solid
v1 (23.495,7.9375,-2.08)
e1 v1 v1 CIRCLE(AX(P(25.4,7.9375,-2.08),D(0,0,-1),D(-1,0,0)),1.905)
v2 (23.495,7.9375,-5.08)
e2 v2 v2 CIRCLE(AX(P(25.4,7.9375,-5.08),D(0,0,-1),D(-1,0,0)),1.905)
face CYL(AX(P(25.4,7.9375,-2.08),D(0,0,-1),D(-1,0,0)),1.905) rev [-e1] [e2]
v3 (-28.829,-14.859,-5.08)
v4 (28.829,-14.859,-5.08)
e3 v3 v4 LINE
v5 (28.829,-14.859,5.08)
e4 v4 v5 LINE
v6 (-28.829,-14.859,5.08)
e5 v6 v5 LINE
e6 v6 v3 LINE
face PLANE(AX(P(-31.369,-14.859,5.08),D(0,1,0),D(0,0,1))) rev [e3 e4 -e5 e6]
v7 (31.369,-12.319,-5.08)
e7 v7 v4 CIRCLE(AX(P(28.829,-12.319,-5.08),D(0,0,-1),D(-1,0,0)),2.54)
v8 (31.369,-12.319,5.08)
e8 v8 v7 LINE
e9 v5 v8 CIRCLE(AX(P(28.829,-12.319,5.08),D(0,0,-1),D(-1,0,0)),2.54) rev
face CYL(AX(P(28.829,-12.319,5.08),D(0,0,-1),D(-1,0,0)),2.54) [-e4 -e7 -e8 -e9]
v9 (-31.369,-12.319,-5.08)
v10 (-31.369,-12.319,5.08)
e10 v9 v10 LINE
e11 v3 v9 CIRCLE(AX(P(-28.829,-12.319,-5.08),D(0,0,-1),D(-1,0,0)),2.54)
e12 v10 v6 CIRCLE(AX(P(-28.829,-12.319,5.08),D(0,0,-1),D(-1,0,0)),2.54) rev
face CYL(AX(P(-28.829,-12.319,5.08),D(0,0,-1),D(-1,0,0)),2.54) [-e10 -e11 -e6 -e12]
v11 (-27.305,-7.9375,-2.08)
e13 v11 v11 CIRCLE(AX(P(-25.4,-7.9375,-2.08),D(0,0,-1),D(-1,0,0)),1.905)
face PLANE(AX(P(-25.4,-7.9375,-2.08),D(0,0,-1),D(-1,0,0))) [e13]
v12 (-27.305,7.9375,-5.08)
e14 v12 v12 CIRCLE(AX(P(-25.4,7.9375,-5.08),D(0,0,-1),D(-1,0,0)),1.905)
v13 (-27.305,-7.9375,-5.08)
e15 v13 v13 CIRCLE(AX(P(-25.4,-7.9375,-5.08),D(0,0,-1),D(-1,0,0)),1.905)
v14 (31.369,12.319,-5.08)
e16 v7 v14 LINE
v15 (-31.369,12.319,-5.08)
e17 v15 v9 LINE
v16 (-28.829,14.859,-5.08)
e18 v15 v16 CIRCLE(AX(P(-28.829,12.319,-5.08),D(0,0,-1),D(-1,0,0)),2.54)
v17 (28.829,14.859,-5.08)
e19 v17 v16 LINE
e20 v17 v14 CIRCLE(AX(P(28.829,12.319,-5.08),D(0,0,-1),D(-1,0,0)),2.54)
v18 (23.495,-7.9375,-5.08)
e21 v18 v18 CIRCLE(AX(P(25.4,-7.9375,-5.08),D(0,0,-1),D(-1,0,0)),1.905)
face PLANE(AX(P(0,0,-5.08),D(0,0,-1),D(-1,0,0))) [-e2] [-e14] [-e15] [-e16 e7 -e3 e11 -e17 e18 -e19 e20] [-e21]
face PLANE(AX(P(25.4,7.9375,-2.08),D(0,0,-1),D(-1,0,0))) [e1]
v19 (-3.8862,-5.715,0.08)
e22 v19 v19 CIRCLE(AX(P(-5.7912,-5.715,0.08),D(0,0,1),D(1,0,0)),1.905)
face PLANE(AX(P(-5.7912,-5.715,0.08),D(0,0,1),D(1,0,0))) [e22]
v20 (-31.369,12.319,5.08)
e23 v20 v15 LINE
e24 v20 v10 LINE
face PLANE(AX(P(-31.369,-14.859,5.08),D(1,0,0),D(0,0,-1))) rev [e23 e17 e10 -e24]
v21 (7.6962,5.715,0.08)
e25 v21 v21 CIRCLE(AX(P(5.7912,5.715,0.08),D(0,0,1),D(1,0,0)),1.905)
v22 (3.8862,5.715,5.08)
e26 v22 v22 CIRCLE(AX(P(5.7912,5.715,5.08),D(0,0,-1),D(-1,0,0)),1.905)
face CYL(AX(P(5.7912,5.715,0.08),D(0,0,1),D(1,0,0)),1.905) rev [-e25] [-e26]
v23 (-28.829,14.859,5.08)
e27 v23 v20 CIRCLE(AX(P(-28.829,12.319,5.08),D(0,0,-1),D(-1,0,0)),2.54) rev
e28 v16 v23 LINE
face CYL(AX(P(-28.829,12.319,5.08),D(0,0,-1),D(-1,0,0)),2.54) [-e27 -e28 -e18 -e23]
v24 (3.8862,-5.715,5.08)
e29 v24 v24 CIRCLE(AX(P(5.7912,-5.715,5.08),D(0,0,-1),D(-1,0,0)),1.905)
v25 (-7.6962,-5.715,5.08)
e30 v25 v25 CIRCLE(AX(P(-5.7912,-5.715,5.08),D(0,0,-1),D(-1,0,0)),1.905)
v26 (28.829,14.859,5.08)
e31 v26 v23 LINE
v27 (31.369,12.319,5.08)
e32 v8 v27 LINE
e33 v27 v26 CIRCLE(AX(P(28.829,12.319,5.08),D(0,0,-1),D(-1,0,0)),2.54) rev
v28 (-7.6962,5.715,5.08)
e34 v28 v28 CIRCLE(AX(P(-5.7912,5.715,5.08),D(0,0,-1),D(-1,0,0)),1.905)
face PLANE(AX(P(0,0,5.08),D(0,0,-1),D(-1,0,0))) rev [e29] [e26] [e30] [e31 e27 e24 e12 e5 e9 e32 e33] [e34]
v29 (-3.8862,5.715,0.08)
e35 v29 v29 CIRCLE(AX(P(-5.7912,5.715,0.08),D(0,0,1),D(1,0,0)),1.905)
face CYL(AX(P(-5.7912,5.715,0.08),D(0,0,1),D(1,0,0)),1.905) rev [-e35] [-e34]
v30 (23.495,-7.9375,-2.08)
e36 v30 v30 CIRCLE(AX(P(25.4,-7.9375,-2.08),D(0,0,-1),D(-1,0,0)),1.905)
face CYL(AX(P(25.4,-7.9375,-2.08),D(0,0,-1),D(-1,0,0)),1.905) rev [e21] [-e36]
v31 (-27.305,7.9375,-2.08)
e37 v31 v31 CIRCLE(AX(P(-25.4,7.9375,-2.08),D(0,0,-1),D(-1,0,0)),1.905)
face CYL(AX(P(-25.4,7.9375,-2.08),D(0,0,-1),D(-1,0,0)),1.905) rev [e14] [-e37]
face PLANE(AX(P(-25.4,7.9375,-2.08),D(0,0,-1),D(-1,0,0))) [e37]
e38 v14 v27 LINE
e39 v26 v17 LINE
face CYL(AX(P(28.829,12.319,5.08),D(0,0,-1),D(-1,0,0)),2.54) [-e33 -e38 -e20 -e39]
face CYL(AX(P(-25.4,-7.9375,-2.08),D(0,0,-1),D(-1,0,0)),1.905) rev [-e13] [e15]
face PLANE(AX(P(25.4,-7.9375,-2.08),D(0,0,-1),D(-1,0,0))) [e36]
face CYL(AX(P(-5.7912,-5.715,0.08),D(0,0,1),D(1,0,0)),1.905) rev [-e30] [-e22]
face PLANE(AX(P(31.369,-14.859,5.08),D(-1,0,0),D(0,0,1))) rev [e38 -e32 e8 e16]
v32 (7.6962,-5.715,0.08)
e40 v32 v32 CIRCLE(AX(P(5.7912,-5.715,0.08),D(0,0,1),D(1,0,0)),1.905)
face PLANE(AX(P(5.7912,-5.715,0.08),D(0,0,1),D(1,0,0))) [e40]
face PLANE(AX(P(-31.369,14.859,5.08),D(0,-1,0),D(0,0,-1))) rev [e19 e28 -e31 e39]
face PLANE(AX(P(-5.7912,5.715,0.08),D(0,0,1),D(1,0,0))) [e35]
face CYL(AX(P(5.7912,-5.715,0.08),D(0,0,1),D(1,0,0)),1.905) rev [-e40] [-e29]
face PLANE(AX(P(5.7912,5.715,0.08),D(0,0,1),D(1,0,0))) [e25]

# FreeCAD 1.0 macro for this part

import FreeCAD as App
import Part
import Sketcher
Q = App.Units.Quantity


def edges_at(feature, points):
    """Names of the edges that pass closest to the given points."""
    edges = feature.Shape.Edges
    near = lambda p: min(range(len(edges)), key=lambda i: edges[i].distToShape(Part.Vertex(*p))[0])
    return sorted({f"Edge{near(p) + 1}" for p in points})


def add_polygon(sketch, points):
    """Adds a closed chain of lines whose ends are joined by coincident constraints."""
    first, n = sketch.GeometryCount, len(points)
    for a, b in zip(points, points[1:] + points[:1]):
        sketch.addGeometry(Part.LineSegment(App.Vector(*a, 0), App.Vector(*b, 0)), False)
    for i in range(n):
        sketch.addConstraint(Sketcher.Constraint("Coincident", first + i, 2, first + (i + 1) % n, 1))

doc = App.newDocument("Part")
body = doc.addObject("PartDesign::Body", "Body")

sketch1 = doc.addObject("Sketcher::SketchObject", "Sketch")
body.addObject(sketch1)
sketch1.AttachmentSupport = (doc.XY_Plane, [""])
sketch1.MapMode = "FlatFace"
add_polygon(sketch1, [(-31, 15), (-31, -15), (31, -15), (31, 15)])
sketch1.addConstraint(Sketcher.Constraint("Vertical", 0))
sketch1.addConstraint(Sketcher.Constraint("Horizontal", 1))
sketch1.addConstraint(Sketcher.Constraint("Vertical", 2))
sketch1.addConstraint(Sketcher.Constraint("Horizontal", 3))
sketch1.addConstraint(Sketcher.Constraint("Symmetric", 0, 2, 2, 2, -1, 1))
sketch1.addConstraint(Sketcher.Constraint("DistanceX", 1, 1, 1, 2, Q("2.47 in")))
sketch1.addConstraint(Sketcher.Constraint("DistanceY", 0, 2, 0, 1, Q("1.17 in")))
pad1 = doc.addObject("PartDesign::Pad", "Pad")
body.addObject(pad1)
pad1.Profile = sketch1
pad1.Length = Q("0.4 in")
pad1.Midplane = True
doc.recompute()

fillet = doc.addObject("PartDesign::Fillet", "Fillet")
body.addObject(fillet)
fillet.Base = (pad1, edges_at(pad1, [
    (31.369, -14.859, 0),
    (-31.369, -14.859, 0),
    (-31.369, 14.859, 0),
    (31.369, 14.859, 0),
]))
fillet.Radius = Q("0.1 in")

sketch2 = doc.addObject("Sketcher::SketchObject", "Sketch001")
body.addObject(sketch2)
sketch2.AttachmentSupport = (doc.XY_Plane, [""])
sketch2.MapMode = "FlatFace"
sketch2.AttachmentOffset = App.Placement(App.Vector(0, 0, 0.2 * 25.4), App.Rotation())
sketch2.addGeometry(Part.Circle(App.Vector(-5.8, 5.7, 0), App.Vector(0, 0, 1), 1.9), False)
sketch2.addGeometry(Part.Circle(App.Vector(5.8, 5.7, 0), App.Vector(0, 0, 1), 1.9), False)
sketch2.addGeometry(Part.Circle(App.Vector(5.8, -5.7, 0), App.Vector(0, 0, 1), 1.9), False)
sketch2.addGeometry(Part.Circle(App.Vector(-5.8, -5.7, 0), App.Vector(0, 0, 1), 1.9), False)
sketch2.addConstraint(Sketcher.Constraint("Equal", 0, 1))
sketch2.addConstraint(Sketcher.Constraint("Equal", 1, 2))
sketch2.addConstraint(Sketcher.Constraint("Equal", 2, 3))
sketch2.addConstraint(Sketcher.Constraint("Symmetric", 0, 3, 2, 3, -1, 1))
sketch2.addConstraint(Sketcher.Constraint("Symmetric", 1, 3, 3, 3, -1, 1))
sketch2.addConstraint(Sketcher.Constraint("Symmetric", 0, 3, 1, 3, -2))
sketch2.addConstraint(Sketcher.Constraint("Diameter", 0, Q("0.15 in")))
sketch2.addConstraint(Sketcher.Constraint("DistanceY", 2, 3, 1, 3, Q("0.45 in")))
sketch2.addConstraint(Sketcher.Constraint("DistanceX", 0, 3, -1, 1, Q("0.228 in")))
pocket1 = doc.addObject("PartDesign::Pocket", "Pocket")
body.addObject(pocket1)
pocket1.Profile = sketch2
pocket1.Length = 10
pocket1.Midplane = True

sketch3 = doc.addObject("Sketcher::SketchObject", "Sketch002")
body.addObject(sketch3)
sketch3.AttachmentSupport = (doc.XY_Plane, [""])
sketch3.MapMode = "FlatFace"
sketch3.AttachmentOffset = App.Placement(App.Vector(0, 0, -0.2 * 25.4), App.Rotation())
sketch3.addGeometry(Part.Circle(App.Vector(25.4, 7.9, 0), App.Vector(0, 0, 1), 1.9), False)
sketch3.addGeometry(Part.Circle(App.Vector(25.4, -7.9, 0), App.Vector(0, 0, 1), 1.9), False)
sketch3.addGeometry(Part.Circle(App.Vector(-25.4, -7.9, 0), App.Vector(0, 0, 1), 1.9), False)
sketch3.addGeometry(Part.Circle(App.Vector(-25.4, 7.9, 0), App.Vector(0, 0, 1), 1.9), False)
sketch3.addConstraint(Sketcher.Constraint("Equal", 0, 1))
sketch3.addConstraint(Sketcher.Constraint("Equal", 1, 2))
sketch3.addConstraint(Sketcher.Constraint("Equal", 2, 3))
sketch3.addConstraint(Sketcher.Constraint("Symmetric", 0, 3, 2, 3, -1, 1))
sketch3.addConstraint(Sketcher.Constraint("Symmetric", 1, 3, 3, 3, -1, 1))
sketch3.addConstraint(Sketcher.Constraint("Symmetric", 1, 3, 2, 3, -2))
sketch3.addConstraint(Sketcher.Constraint("Diameter", 0, Q("0.15 in")))
sketch3.addConstraint(Sketcher.Constraint("DistanceX", -1, 1, 0, 3, Q("1 in")))
sketch3.addConstraint(Sketcher.Constraint("DistanceY", -1, 1, 0, 3, Q("0.3125 in")))
pocket2 = doc.addObject("PartDesign::Pocket", "Pocket001")
body.addObject(pocket2)
pocket2.Profile = sketch3
pocket2.Length = 6
pocket2.Midplane = True

doc.recompute()
